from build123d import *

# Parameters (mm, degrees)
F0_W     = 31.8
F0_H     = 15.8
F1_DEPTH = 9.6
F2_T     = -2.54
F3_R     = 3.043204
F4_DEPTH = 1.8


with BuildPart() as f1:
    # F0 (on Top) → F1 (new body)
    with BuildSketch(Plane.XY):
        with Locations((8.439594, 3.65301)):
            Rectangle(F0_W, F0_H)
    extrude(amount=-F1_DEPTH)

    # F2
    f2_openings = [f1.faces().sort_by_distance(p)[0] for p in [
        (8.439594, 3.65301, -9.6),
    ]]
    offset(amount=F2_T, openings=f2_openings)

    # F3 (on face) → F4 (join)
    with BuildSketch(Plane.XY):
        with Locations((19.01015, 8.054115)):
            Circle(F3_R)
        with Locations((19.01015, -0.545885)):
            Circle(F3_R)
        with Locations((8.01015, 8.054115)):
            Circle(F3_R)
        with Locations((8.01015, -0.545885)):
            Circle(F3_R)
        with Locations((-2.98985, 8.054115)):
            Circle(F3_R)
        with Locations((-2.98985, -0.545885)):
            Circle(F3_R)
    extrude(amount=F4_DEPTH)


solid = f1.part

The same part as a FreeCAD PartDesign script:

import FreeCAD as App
import Part
import Sketcher

V = App.Vector


def faces_at(feature, points):
    """Names of the faces that lie closest to the given points."""
    faces = feature.Shape.Faces
    near = lambda p: min(range(len(faces)), key=lambda i: faces[i].distToShape(Part.Vertex(*p))[0])
    return sorted({f"Face{near(p) + 1}" for p in points})

doc = App.newDocument("Part")
params = doc.addObject("Spreadsheet::Sheet", "Params")
for row, (alias, value) in enumerate([
    ("sketch1_width", "31.8 mm"),
    ("sketch1_height", "15.8 mm"),
    ("pad1_length", "9.6 mm"),
    ("thickness_wall", "2.54 mm"),
    ("pad2_length", "1.8 mm"),
], start=1):
    params.set(f"A{row}", alias)
    params.set(f"B{row}", "=" + value)
    params.setAlias(f"B{row}", alias)

body = doc.addObject("PartDesign::Body", "Body")

# Sketch on XY plane
sketch1 = body.newObject("Sketcher::SketchObject", "Sketch")
sketch1.AttachmentSupport = (doc.getObject("XY_Plane"), [""])
sketch1.MapMode = "FlatFace"
sketch1.addGeometry(Part.LineSegment(V(-7.460406, 11.55301, 0), V(-7.460406, -4.24699, 0)), False)
sketch1.addGeometry(Part.LineSegment(V(-7.460406, -4.24699, 0), V(24.339594, -4.24699, 0)), False)
sketch1.addGeometry(Part.LineSegment(V(24.339594, -4.24699, 0), V(24.339594, 11.55301, 0)), False)
sketch1.addGeometry(Part.LineSegment(V(24.339594, 11.55301, 0), V(-7.460406, 11.55301, 0)), False)
sketch1.addConstraint(Sketcher.Constraint("Coincident", 0, 2, 1, 1))
sketch1.addConstraint(Sketcher.Constraint("Coincident", 1, 2, 2, 1))
sketch1.addConstraint(Sketcher.Constraint("Coincident", 2, 2, 3, 1))
sketch1.addConstraint(Sketcher.Constraint("Coincident", 3, 2, 0, 1))
sketch1.addConstraint(Sketcher.Constraint("Vertical", 0))
sketch1.addConstraint(Sketcher.Constraint("Horizontal", 1))
sketch1.addConstraint(Sketcher.Constraint("Vertical", 2))
sketch1.addConstraint(Sketcher.Constraint("Horizontal", 3))
sketch1.addConstraint(Sketcher.Constraint("DistanceX", 1, 1, 1, 2, 31.8))
sketch1.addConstraint(Sketcher.Constraint("DistanceY", 0, 2, 0, 1, 15.8))
sketch1.addConstraint(Sketcher.Constraint("DistanceY", 0, 2, -1, 1, 4.24699))
sketch1.addConstraint(Sketcher.Constraint("DistanceX", 0, 2, -1, 1, 7.460406))
sketch1.setExpression("Constraints[8]", "Params.sketch1_width")
sketch1.setExpression("Constraints[9]", "Params.sketch1_height")
pad1 = body.newObject("PartDesign::Pad", "Pad")
pad1.Profile = sketch1
pad1.setExpression("Length", "Params.pad1_length")
pad1.Reversed = True
doc.recompute()

thickness = body.newObject("PartDesign::Thickness", "Thickness")
thickness.Base = (pad1, faces_at(pad1, [(8.44, 3.653, -9.6)]))
thickness.setExpression("Value", "Params.thickness_wall")
thickness.Reversed = True
thickness.Join = "Arc"

# Sketch on XY plane
sketch2 = body.newObject("Sketcher::SketchObject", "Sketch001")
sketch2.AttachmentSupport = (doc.getObject("XY_Plane"), [""])
sketch2.MapMode = "FlatFace"
sketch2.addGeometry(Part.Circle(V(19.01015, 8.054115, 0), V(0, 0, 1), 3.043204), False)
sketch2.addGeometry(Part.Circle(V(19.01015, -0.545885, 0), V(0, 0, 1), 3.043204), False)
sketch2.addGeometry(Part.Circle(V(8.01015, 8.054115, 0), V(0, 0, 1), 3.043204), False)
sketch2.addGeometry(Part.Circle(V(8.01015, -0.545885, 0), V(0, 0, 1), 3.043204), False)
sketch2.addGeometry(Part.Circle(V(-2.98985, 8.054115, 0), V(0, 0, 1), 3.043204), False)
sketch2.addGeometry(Part.Circle(V(-2.98985, -0.545885, 0), V(0, 0, 1), 3.043204), False)
sketch2.addConstraint(Sketcher.Constraint("Equal", 0, 1))
sketch2.addConstraint(Sketcher.Constraint("Equal", 1, 2))
sketch2.addConstraint(Sketcher.Constraint("Equal", 2, 3))
sketch2.addConstraint(Sketcher.Constraint("Equal", 3, 4))
sketch2.addConstraint(Sketcher.Constraint("Equal", 4, 5))
sketch2.addConstraint(Sketcher.Constraint("Horizontal", 0, 3, 2, 3))
sketch2.addConstraint(Sketcher.Constraint("Horizontal", 1, 3, 3, 3))
sketch2.addConstraint(Sketcher.Constraint("Horizontal", 2, 3, 4, 3))
sketch2.addConstraint(Sketcher.Constraint("Horizontal", 3, 3, 5, 3))
sketch2.addConstraint(Sketcher.Constraint("Vertical", 0, 3, 1, 3))
sketch2.addConstraint(Sketcher.Constraint("Vertical", 2, 3, 3, 3))
sketch2.addConstraint(Sketcher.Constraint("Vertical", 4, 3, 5, 3))
sketch2.addConstraint(Sketcher.Constraint("DistanceX", 2, 3, 0, 3, 11.0))
sketch2.addConstraint(Sketcher.Constraint("DistanceX", 4, 3, 2, 3, 11.0))
sketch2.addConstraint(Sketcher.Constraint("DistanceY", 1, 3, 0, 3, 8.6))
sketch2.addConstraint(Sketcher.Constraint("Diameter", 0, 6.086408))
sketch2.addConstraint(Sketcher.Constraint("DistanceX", -1, 1, 0, 3, 19.01015))
sketch2.addConstraint(Sketcher.Constraint("DistanceY", -1, 1, 0, 3, 8.054115))
pad2 = body.newObject("PartDesign::Pad", "Pad001")
pad2.Profile = sketch2
pad2.setExpression("Length", "Params.pad2_length")

doc.recompute()
